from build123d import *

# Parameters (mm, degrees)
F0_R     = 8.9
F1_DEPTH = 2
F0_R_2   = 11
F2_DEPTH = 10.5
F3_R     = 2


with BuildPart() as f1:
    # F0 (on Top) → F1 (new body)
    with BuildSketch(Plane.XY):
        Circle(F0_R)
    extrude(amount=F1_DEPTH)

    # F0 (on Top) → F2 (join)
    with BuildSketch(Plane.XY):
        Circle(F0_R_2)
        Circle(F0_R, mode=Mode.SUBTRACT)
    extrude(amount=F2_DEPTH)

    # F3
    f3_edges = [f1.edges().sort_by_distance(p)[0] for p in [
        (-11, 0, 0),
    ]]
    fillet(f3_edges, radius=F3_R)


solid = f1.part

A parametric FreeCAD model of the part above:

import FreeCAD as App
import Part
import Sketcher
from FreeCAD import Vector


def edges_at(feature, points):
    """Names of the edges that pass closest to the given points."""
    edges = feature.Shape.Edges
    near = lambda p: min(range(len(edges)), key=lambda i: edges[i].distToShape(Part.Vertex(*p))[0])
    return sorted({f"Edge{near(p) + 1}" for p in points})

doc = App.newDocument("Part")
body = doc.addObject("PartDesign::Body", "Body")

sketch1 = body.newObject("Sketcher::SketchObject", "Sketch")
sketch1.AttachmentSupport = (doc.getObject("XY_Plane"), [""])
sketch1.MapMode = "FlatFace"
sketch1.addGeometry(Part.Circle(Vector(0, 0, 0), Vector(0, 0, 1), 9), False)
sketch1.addConstraint(Sketcher.Constraint("Coincident", 0, 3, -1, 1))
sketch1.addConstraint(Sketcher.Constraint("Diameter", 0, 17.8))
pad1 = body.newObject("PartDesign::Pad", "Pad")
pad1.Profile = sketch1
pad1.Length = 2

sketch2 = body.newObject("Sketcher::SketchObject", "Sketch001")
sketch2.AttachmentSupport = (doc.getObject("XY_Plane"), [""])
sketch2.MapMode = "FlatFace"
sketch2.addGeometry(Part.Circle(Vector(0, 0, 0), Vector(0, 0, 1), 11), False)
sketch2.addGeometry(Part.Circle(Vector(0, 0, 0), Vector(0, 0, 1), 9), False)
sketch2.addConstraint(Sketcher.Constraint("Coincident", 0, 3, -1, 1))
sketch2.addConstraint(Sketcher.Constraint("Coincident", 1, 3, -1, 1))
sketch2.addConstraint(Sketcher.Constraint("Diameter", 0, 22.0))
sketch2.addConstraint(Sketcher.Constraint("Diameter", 1, 17.8))
pad2 = body.newObject("PartDesign::Pad", "Pad001")
pad2.Profile = sketch2
pad2.Length = 10.5
doc.recompute()

fillet = body.newObject("PartDesign::Fillet", "Fillet")
fillet.Base = (pad2, edges_at(pad2, [(-11, 0, 0)]))
fillet.Radius = 2

doc.recompute()
